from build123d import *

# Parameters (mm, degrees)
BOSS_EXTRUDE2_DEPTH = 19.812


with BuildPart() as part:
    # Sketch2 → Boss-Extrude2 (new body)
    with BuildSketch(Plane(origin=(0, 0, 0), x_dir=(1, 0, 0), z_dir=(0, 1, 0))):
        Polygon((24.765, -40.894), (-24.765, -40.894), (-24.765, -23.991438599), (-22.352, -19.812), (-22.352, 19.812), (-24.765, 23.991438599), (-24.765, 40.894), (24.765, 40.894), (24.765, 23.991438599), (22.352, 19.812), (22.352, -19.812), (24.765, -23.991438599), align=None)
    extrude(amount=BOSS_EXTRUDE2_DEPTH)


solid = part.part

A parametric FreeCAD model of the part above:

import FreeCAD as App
import Part
import Sketcher
Q = App.Units.Quantity

doc = App.newDocument("Part")
params = doc.addObject("Spreadsheet::Sheet", "Params")
for row, (alias, value) in enumerate([
    ("sketch1_width", "1.95 in"),
    ("sketch1_height", "1.56 in"),
    ("sketch1_length", "0.19 in"),
    ("pad1_length", "0.78 in"),
], start=1):
    params.set(f"A{row}", alias)
    params.set(f"B{row}", "=" + value)
    params.setAlias(f"B{row}", alias)

body = doc.addObject("PartDesign::Body", "Body")

# Sketch on XZ plane
sketch1 = body.newObject("Sketcher::SketchObject", "Sketch")
sketch1.AttachmentSupport = (doc.getObject("XZ_Plane"), [""])
sketch1.MapMode = "FlatFace"
sketch1.addGeometry(Part.LineSegment(App.Vector(-24.765, 40.894, 0), App.Vector(24.765, 40.894, 0)), False)
sketch1.addGeometry(Part.LineSegment(App.Vector(24.765, 40.894, 0), App.Vector(24.765, 23.991439, 0)), False)
sketch1.addGeometry(Part.LineSegment(App.Vector(24.765, 23.991439, 0), App.Vector(22.352, 19.812, 0)), False)
sketch1.addGeometry(Part.LineSegment(App.Vector(22.352, 19.812, 0), App.Vector(22.352, -19.812, 0)), False)
sketch1.addGeometry(Part.LineSegment(App.Vector(22.352, -19.812, 0), App.Vector(24.765, -23.991439, 0)), False)
sketch1.addGeometry(Part.LineSegment(App.Vector(24.765, -23.991439, 0), App.Vector(24.765, -40.894, 0)), False)
sketch1.addGeometry(Part.LineSegment(App.Vector(24.765, -40.894, 0), App.Vector(-24.765, -40.894, 0)), False)
sketch1.addGeometry(Part.LineSegment(App.Vector(-24.765, -40.894, 0), App.Vector(-24.765, -23.991439, 0)), False)
sketch1.addGeometry(Part.LineSegment(App.Vector(-24.765, -23.991439, 0), App.Vector(-22.352, -19.812, 0)), False)
sketch1.addGeometry(Part.LineSegment(App.Vector(-22.352, -19.812, 0), App.Vector(-22.352, 19.812, 0)), False)
sketch1.addGeometry(Part.LineSegment(App.Vector(-22.352, 19.812, 0), App.Vector(-24.765, 23.991439, 0)), False)
sketch1.addGeometry(Part.LineSegment(App.Vector(-24.765, 23.991439, 0), App.Vector(-24.765, 40.894, 0)), False)
sketch1.addConstraint(Sketcher.Constraint("Coincident", 0, 2, 1, 1))
sketch1.addConstraint(Sketcher.Constraint("Coincident", 1, 2, 2, 1))
sketch1.addConstraint(Sketcher.Constraint("Coincident", 2, 2, 3, 1))
sketch1.addConstraint(Sketcher.Constraint("Coincident", 3, 2, 4, 1))
sketch1.addConstraint(Sketcher.Constraint("Coincident", 4, 2, 5, 1))
sketch1.addConstraint(Sketcher.Constraint("Coincident", 5, 2, 6, 1))
sketch1.addConstraint(Sketcher.Constraint("Coincident", 6, 2, 7, 1))
sketch1.addConstraint(Sketcher.Constraint("Coincident", 7, 2, 8, 1))
sketch1.addConstraint(Sketcher.Constraint("Coincident", 8, 2, 9, 1))
sketch1.addConstraint(Sketcher.Constraint("Coincident", 9, 2, 10, 1))
sketch1.addConstraint(Sketcher.Constraint("Coincident", 10, 2, 11, 1))
sketch1.addConstraint(Sketcher.Constraint("Coincident", 11, 2, 0, 1))
sketch1.addConstraint(Sketcher.Constraint("Horizontal", 0))
sketch1.addConstraint(Sketcher.Constraint("Vertical", 1))
sketch1.addConstraint(Sketcher.Constraint("Vertical", 3))
sketch1.addConstraint(Sketcher.Constraint("Vertical", 5))
sketch1.addConstraint(Sketcher.Constraint("Horizontal", 6))
sketch1.addConstraint(Sketcher.Constraint("Vertical", 7))
sketch1.addConstraint(Sketcher.Constraint("Vertical", 9))
sketch1.addConstraint(Sketcher.Constraint("Vertical", 11))
sketch1.addConstraint(Sketcher.Constraint("Symmetric", 0, 2, 6, 2, -1, 1))
sketch1.addConstraint(Sketcher.Constraint("Symmetric", 2, 2, 8, 2, -1, 1))
sketch1.addConstraint(Sketcher.Constraint("Symmetric", 4, 2, 10, 2, -1, 1))
sketch1.addConstraint(Sketcher.Constraint("Symmetric", 4, 2, 7, 2, -2))
sketch1.addConstraint(Sketcher.Constraint("Parallel", 2, 8))
sketch1.addConstraint(Sketcher.Constraint("Parallel", 4, 10))
sketch1.addConstraint(Sketcher.Constraint("Horizontal", 3, 2, 8, 2))
sketch1.addConstraint(Sketcher.Constraint("Angle", 2, Q("-120 deg")))
sketch1.addConstraint(Sketcher.Constraint("DistanceX", 0, 1, 0, 2, Q("1.95 in")))
sketch1.addConstraint(Sketcher.Constraint("DistanceY", 3, 2, 3, 1, Q("1.56 in")))
sketch1.addConstraint(Sketcher.Constraint("Distance", 2, Q("0.19 in")))
sketch1.addConstraint(Sketcher.Constraint("DistanceY", -1, 1, 0, 2, Q("1.61 in")))
sketch1.setExpression("Constraints[28]", "Params.sketch1_width")
sketch1.setExpression("Constraints[29]", "Params.sketch1_height")
sketch1.setExpression("Constraints[30]", "Params.sketch1_length")
pad1 = body.newObject("PartDesign::Pad", "Pad")
pad1.Profile = sketch1
pad1.setExpression("Length", "Params.pad1_length")
pad1.Reversed = True

doc.recompute()
